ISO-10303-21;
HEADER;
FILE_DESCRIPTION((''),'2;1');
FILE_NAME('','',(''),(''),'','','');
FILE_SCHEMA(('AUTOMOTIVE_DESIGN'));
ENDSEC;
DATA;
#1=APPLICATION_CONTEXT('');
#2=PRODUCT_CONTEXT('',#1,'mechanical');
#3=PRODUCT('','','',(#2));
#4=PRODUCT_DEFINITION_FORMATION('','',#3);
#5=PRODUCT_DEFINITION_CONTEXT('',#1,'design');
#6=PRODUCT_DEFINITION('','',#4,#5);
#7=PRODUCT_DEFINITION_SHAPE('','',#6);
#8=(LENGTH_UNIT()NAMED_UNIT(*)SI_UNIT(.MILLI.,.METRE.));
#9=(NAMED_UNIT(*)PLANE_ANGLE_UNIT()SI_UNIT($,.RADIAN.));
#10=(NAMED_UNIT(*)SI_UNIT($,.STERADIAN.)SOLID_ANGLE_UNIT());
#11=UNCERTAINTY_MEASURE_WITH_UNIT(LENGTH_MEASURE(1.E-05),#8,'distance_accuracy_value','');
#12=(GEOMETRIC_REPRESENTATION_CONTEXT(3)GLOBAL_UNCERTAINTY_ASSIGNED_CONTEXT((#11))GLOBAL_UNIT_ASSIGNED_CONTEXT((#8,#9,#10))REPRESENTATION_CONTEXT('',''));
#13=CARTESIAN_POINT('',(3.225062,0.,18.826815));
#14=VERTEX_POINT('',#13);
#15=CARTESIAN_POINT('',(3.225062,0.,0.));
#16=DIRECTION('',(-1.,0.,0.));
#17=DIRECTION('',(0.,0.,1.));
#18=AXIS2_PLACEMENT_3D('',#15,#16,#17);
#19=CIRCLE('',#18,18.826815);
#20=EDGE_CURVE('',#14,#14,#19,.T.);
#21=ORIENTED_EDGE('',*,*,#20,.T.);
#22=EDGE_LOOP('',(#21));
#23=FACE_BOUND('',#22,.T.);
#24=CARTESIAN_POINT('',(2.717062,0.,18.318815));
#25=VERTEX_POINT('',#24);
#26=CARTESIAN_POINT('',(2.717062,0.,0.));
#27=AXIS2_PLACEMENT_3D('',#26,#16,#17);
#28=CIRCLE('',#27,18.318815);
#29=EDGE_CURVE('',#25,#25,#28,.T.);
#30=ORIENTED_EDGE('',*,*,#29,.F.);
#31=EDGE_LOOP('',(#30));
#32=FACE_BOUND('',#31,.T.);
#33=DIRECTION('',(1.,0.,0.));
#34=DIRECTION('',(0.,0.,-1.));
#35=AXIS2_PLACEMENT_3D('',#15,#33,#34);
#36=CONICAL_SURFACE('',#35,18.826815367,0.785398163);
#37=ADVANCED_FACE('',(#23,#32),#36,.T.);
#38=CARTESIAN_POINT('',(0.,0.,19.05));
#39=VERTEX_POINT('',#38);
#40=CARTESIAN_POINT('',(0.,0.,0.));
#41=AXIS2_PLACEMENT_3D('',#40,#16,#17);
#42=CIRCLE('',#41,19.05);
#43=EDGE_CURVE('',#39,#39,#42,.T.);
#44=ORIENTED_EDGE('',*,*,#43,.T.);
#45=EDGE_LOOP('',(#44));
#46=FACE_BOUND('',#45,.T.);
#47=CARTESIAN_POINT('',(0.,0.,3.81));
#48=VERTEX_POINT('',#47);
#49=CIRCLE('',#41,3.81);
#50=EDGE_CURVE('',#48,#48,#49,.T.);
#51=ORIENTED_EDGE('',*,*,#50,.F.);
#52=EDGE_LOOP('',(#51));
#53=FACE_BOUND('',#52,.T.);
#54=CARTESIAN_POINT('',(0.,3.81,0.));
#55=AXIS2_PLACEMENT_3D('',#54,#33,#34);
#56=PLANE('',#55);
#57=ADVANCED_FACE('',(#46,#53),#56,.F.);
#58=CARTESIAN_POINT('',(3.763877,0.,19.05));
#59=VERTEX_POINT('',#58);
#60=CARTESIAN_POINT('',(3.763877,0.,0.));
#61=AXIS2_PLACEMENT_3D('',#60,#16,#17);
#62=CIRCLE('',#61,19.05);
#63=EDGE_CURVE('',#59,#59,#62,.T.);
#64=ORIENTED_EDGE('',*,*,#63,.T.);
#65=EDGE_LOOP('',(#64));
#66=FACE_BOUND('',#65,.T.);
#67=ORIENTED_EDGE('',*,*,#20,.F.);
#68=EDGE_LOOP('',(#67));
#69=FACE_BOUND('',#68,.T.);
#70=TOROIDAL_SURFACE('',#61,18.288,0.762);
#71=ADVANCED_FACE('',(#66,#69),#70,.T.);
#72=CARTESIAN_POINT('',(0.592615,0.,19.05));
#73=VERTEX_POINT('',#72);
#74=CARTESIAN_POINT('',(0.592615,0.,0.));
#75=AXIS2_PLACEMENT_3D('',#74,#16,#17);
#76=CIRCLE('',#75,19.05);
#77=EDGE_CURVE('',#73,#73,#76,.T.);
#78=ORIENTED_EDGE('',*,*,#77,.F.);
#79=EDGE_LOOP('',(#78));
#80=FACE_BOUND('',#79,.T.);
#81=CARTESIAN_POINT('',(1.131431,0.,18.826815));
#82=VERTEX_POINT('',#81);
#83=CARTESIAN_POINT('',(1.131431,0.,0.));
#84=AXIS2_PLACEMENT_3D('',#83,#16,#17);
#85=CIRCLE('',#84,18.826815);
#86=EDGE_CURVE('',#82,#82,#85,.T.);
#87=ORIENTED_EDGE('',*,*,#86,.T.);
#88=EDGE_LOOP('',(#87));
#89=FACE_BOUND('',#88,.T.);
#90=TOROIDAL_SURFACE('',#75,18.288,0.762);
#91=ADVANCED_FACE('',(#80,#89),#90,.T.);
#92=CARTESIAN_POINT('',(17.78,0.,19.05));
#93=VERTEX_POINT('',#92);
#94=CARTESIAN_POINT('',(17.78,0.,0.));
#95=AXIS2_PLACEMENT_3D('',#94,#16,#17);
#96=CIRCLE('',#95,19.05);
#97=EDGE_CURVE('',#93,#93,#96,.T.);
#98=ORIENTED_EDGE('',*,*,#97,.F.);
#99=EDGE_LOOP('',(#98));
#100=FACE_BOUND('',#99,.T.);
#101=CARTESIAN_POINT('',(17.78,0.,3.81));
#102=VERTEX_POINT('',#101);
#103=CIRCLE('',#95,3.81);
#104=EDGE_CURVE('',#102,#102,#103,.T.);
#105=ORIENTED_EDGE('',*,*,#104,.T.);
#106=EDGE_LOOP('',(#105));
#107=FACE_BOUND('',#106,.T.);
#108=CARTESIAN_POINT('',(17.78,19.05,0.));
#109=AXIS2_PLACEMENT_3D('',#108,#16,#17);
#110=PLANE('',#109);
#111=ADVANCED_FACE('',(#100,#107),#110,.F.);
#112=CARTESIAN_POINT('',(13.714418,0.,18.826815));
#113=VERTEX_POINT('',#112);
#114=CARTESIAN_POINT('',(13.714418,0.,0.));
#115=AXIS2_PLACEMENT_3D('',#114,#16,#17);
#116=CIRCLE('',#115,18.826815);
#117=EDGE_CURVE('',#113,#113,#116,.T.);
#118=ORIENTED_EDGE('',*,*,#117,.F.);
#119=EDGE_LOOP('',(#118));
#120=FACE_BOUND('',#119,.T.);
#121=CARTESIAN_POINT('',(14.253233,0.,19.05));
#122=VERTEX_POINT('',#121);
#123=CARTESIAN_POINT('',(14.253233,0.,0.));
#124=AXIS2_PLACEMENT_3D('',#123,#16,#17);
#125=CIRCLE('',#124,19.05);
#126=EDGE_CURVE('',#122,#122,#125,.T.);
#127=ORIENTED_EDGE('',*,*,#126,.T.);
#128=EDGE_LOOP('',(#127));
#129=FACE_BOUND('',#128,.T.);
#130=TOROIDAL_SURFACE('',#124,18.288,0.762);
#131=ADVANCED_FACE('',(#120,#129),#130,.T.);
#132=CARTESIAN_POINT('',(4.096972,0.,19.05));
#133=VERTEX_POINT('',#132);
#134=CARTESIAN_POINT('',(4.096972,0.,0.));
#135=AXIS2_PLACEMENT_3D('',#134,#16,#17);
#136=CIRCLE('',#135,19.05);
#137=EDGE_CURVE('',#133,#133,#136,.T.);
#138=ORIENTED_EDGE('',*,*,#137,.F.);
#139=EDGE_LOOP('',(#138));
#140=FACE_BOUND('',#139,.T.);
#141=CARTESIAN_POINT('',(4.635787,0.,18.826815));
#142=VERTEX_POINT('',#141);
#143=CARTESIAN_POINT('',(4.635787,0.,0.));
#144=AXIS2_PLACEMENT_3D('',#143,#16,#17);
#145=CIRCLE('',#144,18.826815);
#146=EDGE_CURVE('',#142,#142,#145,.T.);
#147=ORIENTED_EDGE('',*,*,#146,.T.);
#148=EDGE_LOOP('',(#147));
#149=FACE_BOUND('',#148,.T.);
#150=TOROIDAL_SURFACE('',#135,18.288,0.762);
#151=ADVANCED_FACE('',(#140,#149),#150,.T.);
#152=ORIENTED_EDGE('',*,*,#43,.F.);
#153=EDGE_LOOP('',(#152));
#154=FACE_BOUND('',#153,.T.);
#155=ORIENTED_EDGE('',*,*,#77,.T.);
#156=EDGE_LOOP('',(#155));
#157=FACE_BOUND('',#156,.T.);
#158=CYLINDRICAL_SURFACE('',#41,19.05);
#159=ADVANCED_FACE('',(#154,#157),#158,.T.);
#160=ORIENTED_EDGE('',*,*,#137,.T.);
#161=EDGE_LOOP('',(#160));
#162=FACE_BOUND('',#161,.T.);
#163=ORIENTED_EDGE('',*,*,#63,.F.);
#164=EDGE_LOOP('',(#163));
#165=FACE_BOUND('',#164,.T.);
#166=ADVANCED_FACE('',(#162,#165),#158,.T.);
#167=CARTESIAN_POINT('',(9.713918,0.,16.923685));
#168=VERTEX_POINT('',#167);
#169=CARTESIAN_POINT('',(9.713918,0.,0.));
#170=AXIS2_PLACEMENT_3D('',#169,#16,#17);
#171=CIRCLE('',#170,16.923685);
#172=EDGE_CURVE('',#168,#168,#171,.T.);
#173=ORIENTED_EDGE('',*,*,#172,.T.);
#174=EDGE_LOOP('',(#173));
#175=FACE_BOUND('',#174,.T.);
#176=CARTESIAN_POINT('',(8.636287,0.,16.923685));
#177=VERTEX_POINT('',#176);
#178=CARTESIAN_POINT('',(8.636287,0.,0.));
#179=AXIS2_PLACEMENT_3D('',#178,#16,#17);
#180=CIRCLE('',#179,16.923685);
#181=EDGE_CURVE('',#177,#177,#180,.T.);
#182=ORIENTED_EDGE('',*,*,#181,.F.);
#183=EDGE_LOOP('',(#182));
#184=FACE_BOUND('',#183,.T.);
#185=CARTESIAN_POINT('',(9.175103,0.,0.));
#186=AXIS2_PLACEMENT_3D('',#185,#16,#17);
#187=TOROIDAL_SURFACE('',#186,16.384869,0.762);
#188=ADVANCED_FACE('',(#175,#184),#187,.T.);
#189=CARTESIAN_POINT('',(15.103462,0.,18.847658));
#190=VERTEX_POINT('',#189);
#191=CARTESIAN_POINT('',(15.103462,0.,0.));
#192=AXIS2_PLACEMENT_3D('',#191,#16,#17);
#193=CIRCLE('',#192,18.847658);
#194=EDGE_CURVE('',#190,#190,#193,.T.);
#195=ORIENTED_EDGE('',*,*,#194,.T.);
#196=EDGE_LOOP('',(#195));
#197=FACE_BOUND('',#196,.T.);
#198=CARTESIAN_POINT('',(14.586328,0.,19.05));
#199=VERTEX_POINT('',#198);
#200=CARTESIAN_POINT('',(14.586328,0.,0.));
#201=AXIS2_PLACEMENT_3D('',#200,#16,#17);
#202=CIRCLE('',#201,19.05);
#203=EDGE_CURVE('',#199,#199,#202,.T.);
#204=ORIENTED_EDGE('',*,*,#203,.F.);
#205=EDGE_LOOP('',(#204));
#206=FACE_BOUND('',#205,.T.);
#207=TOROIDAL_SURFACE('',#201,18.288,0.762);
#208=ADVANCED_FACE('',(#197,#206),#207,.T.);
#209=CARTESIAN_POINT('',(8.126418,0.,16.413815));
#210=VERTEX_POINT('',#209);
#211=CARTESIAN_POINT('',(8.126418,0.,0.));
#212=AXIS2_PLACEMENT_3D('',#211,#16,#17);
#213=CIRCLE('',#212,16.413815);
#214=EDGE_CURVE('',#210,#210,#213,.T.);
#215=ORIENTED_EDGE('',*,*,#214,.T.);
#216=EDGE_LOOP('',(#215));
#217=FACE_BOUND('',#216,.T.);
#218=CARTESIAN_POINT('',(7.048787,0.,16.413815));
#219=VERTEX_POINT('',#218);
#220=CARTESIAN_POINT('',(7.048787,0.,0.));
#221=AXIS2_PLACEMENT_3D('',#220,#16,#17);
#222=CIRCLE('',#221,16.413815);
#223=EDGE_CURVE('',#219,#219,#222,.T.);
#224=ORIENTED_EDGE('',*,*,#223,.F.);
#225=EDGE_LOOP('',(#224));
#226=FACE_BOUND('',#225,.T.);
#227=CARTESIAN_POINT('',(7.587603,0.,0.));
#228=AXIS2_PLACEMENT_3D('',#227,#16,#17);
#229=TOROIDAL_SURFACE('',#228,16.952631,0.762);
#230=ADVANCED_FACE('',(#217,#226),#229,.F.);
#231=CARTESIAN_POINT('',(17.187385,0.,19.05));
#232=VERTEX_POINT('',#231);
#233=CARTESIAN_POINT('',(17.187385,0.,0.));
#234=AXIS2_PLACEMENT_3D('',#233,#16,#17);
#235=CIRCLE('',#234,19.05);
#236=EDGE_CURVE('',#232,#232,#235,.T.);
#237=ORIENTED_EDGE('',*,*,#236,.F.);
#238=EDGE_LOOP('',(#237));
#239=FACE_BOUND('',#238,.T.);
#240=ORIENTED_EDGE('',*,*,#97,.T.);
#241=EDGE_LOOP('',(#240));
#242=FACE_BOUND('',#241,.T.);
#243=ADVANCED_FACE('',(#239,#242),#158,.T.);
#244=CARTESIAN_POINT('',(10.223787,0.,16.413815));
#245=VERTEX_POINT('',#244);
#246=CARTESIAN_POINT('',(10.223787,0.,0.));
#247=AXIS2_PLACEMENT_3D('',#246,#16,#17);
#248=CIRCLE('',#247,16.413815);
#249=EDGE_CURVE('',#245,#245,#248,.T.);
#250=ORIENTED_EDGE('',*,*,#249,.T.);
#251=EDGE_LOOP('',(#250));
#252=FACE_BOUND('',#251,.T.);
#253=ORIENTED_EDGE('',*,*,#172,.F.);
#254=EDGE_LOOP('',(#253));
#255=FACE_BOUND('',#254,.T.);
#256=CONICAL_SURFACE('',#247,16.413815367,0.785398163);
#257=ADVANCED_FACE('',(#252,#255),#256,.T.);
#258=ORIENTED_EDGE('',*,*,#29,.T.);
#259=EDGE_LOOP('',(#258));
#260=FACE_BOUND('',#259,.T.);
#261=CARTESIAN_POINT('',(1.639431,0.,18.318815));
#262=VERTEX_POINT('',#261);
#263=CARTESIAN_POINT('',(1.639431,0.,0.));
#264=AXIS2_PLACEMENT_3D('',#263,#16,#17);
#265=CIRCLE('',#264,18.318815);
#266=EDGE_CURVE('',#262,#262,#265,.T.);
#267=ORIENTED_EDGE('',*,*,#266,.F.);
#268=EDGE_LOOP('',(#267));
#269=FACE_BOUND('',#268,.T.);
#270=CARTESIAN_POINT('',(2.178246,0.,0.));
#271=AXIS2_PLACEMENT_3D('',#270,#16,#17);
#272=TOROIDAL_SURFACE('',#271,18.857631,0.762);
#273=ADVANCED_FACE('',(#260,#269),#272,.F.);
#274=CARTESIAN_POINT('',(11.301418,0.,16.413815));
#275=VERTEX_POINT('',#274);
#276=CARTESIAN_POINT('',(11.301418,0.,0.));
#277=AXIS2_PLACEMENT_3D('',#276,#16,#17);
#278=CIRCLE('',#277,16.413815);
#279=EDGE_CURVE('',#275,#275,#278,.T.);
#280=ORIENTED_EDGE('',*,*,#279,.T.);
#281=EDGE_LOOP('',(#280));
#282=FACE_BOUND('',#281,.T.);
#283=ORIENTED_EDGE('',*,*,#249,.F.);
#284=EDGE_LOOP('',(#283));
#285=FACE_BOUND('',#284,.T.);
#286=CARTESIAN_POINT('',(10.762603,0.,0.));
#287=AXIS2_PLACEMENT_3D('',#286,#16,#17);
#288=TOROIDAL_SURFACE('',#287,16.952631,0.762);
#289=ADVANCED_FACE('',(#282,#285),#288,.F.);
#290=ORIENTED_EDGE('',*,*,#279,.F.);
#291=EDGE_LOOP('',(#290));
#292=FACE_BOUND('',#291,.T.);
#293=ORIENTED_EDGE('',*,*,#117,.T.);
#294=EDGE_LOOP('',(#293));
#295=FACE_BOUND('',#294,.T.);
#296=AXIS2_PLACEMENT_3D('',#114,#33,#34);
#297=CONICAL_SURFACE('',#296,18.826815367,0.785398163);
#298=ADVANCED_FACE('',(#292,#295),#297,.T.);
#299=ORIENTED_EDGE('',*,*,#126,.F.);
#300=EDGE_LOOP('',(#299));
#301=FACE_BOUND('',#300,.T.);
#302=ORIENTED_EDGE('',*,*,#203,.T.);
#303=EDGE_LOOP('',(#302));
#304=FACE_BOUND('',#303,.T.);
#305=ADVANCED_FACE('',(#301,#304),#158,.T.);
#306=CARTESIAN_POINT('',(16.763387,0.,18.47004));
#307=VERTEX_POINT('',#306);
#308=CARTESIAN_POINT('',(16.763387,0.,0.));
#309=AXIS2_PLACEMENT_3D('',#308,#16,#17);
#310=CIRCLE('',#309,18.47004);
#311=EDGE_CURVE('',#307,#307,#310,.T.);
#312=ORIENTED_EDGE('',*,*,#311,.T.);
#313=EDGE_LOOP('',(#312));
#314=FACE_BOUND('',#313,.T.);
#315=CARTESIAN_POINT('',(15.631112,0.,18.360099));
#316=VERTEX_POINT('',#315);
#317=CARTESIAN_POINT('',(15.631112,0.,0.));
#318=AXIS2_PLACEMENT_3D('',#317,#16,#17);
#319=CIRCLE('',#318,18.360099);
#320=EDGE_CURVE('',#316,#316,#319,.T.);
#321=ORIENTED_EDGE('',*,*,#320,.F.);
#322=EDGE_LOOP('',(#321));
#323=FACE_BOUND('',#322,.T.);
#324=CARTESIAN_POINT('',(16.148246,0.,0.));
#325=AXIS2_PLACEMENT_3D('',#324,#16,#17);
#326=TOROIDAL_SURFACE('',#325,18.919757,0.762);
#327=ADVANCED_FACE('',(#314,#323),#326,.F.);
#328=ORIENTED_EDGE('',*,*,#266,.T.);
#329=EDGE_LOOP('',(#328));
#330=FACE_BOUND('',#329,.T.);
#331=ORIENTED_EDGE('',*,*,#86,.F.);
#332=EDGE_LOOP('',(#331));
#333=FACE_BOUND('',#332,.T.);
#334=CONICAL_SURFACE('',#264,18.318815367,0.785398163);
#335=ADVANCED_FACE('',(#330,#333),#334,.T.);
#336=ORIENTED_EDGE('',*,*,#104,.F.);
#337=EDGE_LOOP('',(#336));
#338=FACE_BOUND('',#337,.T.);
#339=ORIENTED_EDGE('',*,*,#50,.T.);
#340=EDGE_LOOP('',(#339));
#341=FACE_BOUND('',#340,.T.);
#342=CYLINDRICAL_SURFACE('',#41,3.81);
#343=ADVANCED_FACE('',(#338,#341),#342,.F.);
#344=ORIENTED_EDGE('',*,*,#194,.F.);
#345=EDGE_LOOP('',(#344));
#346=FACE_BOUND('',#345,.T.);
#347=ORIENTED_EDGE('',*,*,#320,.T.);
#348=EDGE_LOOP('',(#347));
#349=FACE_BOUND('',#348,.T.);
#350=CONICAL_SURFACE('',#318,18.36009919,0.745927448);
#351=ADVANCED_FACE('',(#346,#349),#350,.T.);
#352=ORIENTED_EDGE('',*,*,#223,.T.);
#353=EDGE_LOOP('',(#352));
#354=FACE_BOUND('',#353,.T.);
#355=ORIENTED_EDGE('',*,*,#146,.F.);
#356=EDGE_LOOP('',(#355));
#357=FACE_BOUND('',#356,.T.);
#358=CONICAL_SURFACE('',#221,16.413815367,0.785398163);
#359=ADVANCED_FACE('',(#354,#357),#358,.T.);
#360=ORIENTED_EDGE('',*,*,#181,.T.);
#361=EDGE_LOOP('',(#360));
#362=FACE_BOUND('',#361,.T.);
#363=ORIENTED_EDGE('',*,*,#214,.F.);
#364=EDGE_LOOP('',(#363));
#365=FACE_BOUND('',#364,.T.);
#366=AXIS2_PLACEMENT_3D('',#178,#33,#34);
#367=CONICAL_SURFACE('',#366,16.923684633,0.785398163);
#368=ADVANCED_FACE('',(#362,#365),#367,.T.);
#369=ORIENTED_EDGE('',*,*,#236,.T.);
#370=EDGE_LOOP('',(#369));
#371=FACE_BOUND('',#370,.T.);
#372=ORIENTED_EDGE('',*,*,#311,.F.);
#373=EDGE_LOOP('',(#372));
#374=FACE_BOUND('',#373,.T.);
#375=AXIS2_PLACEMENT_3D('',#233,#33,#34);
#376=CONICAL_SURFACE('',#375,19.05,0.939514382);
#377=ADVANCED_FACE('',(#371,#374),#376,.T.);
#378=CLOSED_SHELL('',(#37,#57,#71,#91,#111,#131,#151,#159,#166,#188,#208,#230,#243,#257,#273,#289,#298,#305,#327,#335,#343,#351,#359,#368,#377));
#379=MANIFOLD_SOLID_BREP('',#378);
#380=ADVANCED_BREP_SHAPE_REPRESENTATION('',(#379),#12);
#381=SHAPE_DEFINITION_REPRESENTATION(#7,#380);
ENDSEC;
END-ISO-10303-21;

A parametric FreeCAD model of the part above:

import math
import FreeCAD as App
import Part
import Sketcher

V = App.Vector
Q = App.Units.Quantity

doc = App.newDocument("Part")
body = doc.addObject("PartDesign::Body", "Body")

# Sketch on XY plane
sketch1 = body.newObject("Sketcher::SketchObject", "Sketch")
sketch1.AttachmentSupport = (doc.getObject("XY_Plane"), [""])
sketch1.MapMode = "FlatFace"
sketch1.addGeometry([
    Part.LineSegment(V(0, 19.05, 0), V(0, 3.81, 0)),  # 0
    Part.LineSegment(V(0, 3.81, 0), V(17.78, 3.81, 0)),  # 1
    Part.LineSegment(V(17.78, 3.81, 0), V(17.78, 19.05, 0)),  # 2
    Part.LineSegment(V(17.78, 19.05, 0), V(17.19, 19.05, 0)),  # 3
    Part.LineSegment(V(17.19, 19.05, 0), V(16.76, 18.47, 0)),  # 4
    Part.ArcOfCircle(Part.Circle(V(16.15, 18.92, 0), V(0, 0, 1), 0.76), math.radians(-133), math.radians(-36)),  # 5
    Part.LineSegment(V(15.63, 18.36, 0), V(15.1, 18.85, 0)),  # 6
    Part.ArcOfCircle(Part.Circle(V(14.59, 18.29, 0), V(0, 0, 1), 0.76), math.radians(47), math.radians(90)),  # 7
    Part.LineSegment(V(14.59, 19.05, 0), V(14.25, 19.05, 0)),  # 8
    Part.ArcOfCircle(Part.Circle(V(14.25, 18.29, 0), V(0, 0, 1), 0.76), math.radians(90), math.radians(135)),  # 9
    Part.LineSegment(V(13.71, 18.83, 0), V(11.3, 16.41, 0)),  # 10
    Part.ArcOfCircle(Part.Circle(V(10.76, 16.95, 0), V(0, 0, 1), 0.76), math.radians(-135), math.radians(-45)),  # 11
    Part.LineSegment(V(10.22, 16.41, 0), V(9.71, 16.92, 0)),  # 12
    Part.ArcOfCircle(Part.Circle(V(9.18, 16.38, 0), V(0, 0, 1), 0.76), math.radians(45), math.radians(135)),  # 13
    Part.LineSegment(V(8.64, 16.92, 0), V(8.13, 16.41, 0)),  # 14
    Part.ArcOfCircle(Part.Circle(V(7.59, 16.95, 0), V(0, 0, 1), 0.76), math.radians(-135), math.radians(-45)),  # 15
    Part.LineSegment(V(7.05, 16.41, 0), V(4.64, 18.83, 0)),  # 16
    Part.ArcOfCircle(Part.Circle(V(4.1, 18.29, 0), V(0, 0, 1), 0.76), math.radians(45), math.radians(90)),  # 17
    Part.LineSegment(V(4.1, 19.05, 0), V(3.76, 19.05, 0)),  # 18
    Part.ArcOfCircle(Part.Circle(V(3.76, 18.29, 0), V(0, 0, 1), 0.76), math.radians(90), math.radians(135)),  # 19
    Part.LineSegment(V(3.23, 18.83, 0), V(2.72, 18.32, 0)),  # 20
    Part.ArcOfCircle(Part.Circle(V(2.18, 18.86, 0), V(0, 0, 1), 0.76), math.radians(-135), math.radians(-45)),  # 21
    Part.LineSegment(V(1.64, 18.32, 0), V(1.13, 18.83, 0)),  # 22
    Part.ArcOfCircle(Part.Circle(V(0.59, 18.29, 0), V(0, 0, 1), 0.76), math.radians(45), math.radians(90)),  # 23
    Part.LineSegment(V(0.59, 19.05, 0), V(0, 19.05, 0)),  # 24
], False)
sketch1.addConstraint([
    Sketcher.Constraint("Coincident", 0, 2, 1, 1),
    Sketcher.Constraint("Coincident", 1, 2, 2, 1),
    Sketcher.Constraint("Coincident", 2, 2, 3, 1),
    Sketcher.Constraint("Coincident", 3, 2, 4, 1),
    Sketcher.Constraint("Tangent", 4, 2, 5, 2),
    Sketcher.Constraint("Tangent", 5, 1, 6, 1),
    Sketcher.Constraint("Tangent", 6, 2, 7, 1),
    Sketcher.Constraint("Tangent", 7, 2, 8, 1),
    Sketcher.Constraint("Tangent", 8, 2, 9, 1),
    Sketcher.Constraint("Tangent", 9, 2, 10, 1),
    Sketcher.Constraint("Tangent", 10, 2, 11, 2),
    Sketcher.Constraint("Tangent", 11, 1, 12, 1),
    Sketcher.Constraint("Tangent", 12, 2, 13, 1),
    Sketcher.Constraint("Tangent", 13, 2, 14, 1),
    Sketcher.Constraint("Tangent", 14, 2, 15, 2),
    Sketcher.Constraint("Tangent", 15, 1, 16, 1),
    Sketcher.Constraint("Tangent", 16, 2, 17, 1),
    Sketcher.Constraint("Tangent", 17, 2, 18, 1),
    Sketcher.Constraint("Tangent", 18, 2, 19, 1),
    Sketcher.Constraint("Tangent", 19, 2, 20, 1),
    Sketcher.Constraint("Tangent", 20, 2, 21, 2),
    Sketcher.Constraint("Tangent", 21, 1, 22, 1),
    Sketcher.Constraint("Tangent", 22, 2, 23, 1),
    Sketcher.Constraint("Tangent", 23, 2, 24, 1),
    Sketcher.Constraint("Coincident", 24, 2, 0, 1),
    Sketcher.Constraint("Vertical", 0),
    Sketcher.Constraint("Horizontal", 1),
    Sketcher.Constraint("Vertical", 2),
    Sketcher.Constraint("Horizontal", 3),
    Sketcher.Constraint("Horizontal", 8),
    Sketcher.Constraint("Horizontal", 18),
    Sketcher.Constraint("Horizontal", 24),
    Sketcher.Constraint("Equal", 5, 7),
    Sketcher.Constraint("Equal", 7, 9),
    Sketcher.Constraint("Equal", 9, 11),
    Sketcher.Constraint("Equal", 11, 13),
    Sketcher.Constraint("Equal", 13, 15),
    Sketcher.Constraint("Equal", 15, 17),
    Sketcher.Constraint("Equal", 17, 19),
    Sketcher.Constraint("Equal", 19, 21),
    Sketcher.Constraint("Equal", 21, 23),
    Sketcher.Constraint("PointOnObject", 0, 2, -2),
    Sketcher.Constraint("Perpendicular", 10, 12),
    Sketcher.Constraint("Perpendicular", 12, 14),
    Sketcher.Constraint("Perpendicular", 14, 16),
    Sketcher.Constraint("Perpendicular", 16, 20),
    Sketcher.Constraint("Perpendicular", 20, 22),
    Sketcher.Constraint("Horizontal", 11, 3, 15, 3),
    Sketcher.Constraint("Horizontal", 9, 3, 17, 3),
    Sketcher.Constraint("Horizontal", 19, 3, 23, 3),
    Sketcher.Constraint("Horizontal", 3, 2, 7, 2),
    Sketcher.Constraint("Horizontal", 10, 2, 11, 1),
    Sketcher.Constraint("Equal", 8, 18),
    Sketcher.Constraint("Equal", 3, 24),
    Sketcher.Constraint("Equal", 4, 6),
    Sketcher.Constraint("Equal", 6, 20),
    Sketcher.Constraint("Radius", 5, Q("0.03 in")),
    Sketcher.Constraint("DistanceX", 1, 1, 1, 2, Q("0.7 in")),
    Sketcher.Constraint("DistanceY", 0, 2, 0, 1, Q("0.6 in")),
    Sketcher.Constraint("DistanceY", -1, 1, 7, 3, Q("0.72 in")),
    Sketcher.Constraint("DistanceX", 20, 2, 19, 2, Q("0.02 in")),
    Sketcher.Constraint("DistanceX", 13, 3, 11, 3, Q("0.0625 in")),
    Sketcher.Constraint("DistanceY", 15, 3, 21, 3, Q("0.075 in")),
    Sketcher.Constraint("DistanceY", -1, 1, 5, 1, 18.360099),
    Sketcher.Constraint("DistanceX", 3, 2, 3, 1, 0.592615),
])
revolution = body.newObject("PartDesign::Revolution", "Revolution")
revolution.Profile = sketch1
revolution.ReferenceAxis = (sketch1, ["H_Axis"])
revolution.Angle = 360

doc.recompute()
